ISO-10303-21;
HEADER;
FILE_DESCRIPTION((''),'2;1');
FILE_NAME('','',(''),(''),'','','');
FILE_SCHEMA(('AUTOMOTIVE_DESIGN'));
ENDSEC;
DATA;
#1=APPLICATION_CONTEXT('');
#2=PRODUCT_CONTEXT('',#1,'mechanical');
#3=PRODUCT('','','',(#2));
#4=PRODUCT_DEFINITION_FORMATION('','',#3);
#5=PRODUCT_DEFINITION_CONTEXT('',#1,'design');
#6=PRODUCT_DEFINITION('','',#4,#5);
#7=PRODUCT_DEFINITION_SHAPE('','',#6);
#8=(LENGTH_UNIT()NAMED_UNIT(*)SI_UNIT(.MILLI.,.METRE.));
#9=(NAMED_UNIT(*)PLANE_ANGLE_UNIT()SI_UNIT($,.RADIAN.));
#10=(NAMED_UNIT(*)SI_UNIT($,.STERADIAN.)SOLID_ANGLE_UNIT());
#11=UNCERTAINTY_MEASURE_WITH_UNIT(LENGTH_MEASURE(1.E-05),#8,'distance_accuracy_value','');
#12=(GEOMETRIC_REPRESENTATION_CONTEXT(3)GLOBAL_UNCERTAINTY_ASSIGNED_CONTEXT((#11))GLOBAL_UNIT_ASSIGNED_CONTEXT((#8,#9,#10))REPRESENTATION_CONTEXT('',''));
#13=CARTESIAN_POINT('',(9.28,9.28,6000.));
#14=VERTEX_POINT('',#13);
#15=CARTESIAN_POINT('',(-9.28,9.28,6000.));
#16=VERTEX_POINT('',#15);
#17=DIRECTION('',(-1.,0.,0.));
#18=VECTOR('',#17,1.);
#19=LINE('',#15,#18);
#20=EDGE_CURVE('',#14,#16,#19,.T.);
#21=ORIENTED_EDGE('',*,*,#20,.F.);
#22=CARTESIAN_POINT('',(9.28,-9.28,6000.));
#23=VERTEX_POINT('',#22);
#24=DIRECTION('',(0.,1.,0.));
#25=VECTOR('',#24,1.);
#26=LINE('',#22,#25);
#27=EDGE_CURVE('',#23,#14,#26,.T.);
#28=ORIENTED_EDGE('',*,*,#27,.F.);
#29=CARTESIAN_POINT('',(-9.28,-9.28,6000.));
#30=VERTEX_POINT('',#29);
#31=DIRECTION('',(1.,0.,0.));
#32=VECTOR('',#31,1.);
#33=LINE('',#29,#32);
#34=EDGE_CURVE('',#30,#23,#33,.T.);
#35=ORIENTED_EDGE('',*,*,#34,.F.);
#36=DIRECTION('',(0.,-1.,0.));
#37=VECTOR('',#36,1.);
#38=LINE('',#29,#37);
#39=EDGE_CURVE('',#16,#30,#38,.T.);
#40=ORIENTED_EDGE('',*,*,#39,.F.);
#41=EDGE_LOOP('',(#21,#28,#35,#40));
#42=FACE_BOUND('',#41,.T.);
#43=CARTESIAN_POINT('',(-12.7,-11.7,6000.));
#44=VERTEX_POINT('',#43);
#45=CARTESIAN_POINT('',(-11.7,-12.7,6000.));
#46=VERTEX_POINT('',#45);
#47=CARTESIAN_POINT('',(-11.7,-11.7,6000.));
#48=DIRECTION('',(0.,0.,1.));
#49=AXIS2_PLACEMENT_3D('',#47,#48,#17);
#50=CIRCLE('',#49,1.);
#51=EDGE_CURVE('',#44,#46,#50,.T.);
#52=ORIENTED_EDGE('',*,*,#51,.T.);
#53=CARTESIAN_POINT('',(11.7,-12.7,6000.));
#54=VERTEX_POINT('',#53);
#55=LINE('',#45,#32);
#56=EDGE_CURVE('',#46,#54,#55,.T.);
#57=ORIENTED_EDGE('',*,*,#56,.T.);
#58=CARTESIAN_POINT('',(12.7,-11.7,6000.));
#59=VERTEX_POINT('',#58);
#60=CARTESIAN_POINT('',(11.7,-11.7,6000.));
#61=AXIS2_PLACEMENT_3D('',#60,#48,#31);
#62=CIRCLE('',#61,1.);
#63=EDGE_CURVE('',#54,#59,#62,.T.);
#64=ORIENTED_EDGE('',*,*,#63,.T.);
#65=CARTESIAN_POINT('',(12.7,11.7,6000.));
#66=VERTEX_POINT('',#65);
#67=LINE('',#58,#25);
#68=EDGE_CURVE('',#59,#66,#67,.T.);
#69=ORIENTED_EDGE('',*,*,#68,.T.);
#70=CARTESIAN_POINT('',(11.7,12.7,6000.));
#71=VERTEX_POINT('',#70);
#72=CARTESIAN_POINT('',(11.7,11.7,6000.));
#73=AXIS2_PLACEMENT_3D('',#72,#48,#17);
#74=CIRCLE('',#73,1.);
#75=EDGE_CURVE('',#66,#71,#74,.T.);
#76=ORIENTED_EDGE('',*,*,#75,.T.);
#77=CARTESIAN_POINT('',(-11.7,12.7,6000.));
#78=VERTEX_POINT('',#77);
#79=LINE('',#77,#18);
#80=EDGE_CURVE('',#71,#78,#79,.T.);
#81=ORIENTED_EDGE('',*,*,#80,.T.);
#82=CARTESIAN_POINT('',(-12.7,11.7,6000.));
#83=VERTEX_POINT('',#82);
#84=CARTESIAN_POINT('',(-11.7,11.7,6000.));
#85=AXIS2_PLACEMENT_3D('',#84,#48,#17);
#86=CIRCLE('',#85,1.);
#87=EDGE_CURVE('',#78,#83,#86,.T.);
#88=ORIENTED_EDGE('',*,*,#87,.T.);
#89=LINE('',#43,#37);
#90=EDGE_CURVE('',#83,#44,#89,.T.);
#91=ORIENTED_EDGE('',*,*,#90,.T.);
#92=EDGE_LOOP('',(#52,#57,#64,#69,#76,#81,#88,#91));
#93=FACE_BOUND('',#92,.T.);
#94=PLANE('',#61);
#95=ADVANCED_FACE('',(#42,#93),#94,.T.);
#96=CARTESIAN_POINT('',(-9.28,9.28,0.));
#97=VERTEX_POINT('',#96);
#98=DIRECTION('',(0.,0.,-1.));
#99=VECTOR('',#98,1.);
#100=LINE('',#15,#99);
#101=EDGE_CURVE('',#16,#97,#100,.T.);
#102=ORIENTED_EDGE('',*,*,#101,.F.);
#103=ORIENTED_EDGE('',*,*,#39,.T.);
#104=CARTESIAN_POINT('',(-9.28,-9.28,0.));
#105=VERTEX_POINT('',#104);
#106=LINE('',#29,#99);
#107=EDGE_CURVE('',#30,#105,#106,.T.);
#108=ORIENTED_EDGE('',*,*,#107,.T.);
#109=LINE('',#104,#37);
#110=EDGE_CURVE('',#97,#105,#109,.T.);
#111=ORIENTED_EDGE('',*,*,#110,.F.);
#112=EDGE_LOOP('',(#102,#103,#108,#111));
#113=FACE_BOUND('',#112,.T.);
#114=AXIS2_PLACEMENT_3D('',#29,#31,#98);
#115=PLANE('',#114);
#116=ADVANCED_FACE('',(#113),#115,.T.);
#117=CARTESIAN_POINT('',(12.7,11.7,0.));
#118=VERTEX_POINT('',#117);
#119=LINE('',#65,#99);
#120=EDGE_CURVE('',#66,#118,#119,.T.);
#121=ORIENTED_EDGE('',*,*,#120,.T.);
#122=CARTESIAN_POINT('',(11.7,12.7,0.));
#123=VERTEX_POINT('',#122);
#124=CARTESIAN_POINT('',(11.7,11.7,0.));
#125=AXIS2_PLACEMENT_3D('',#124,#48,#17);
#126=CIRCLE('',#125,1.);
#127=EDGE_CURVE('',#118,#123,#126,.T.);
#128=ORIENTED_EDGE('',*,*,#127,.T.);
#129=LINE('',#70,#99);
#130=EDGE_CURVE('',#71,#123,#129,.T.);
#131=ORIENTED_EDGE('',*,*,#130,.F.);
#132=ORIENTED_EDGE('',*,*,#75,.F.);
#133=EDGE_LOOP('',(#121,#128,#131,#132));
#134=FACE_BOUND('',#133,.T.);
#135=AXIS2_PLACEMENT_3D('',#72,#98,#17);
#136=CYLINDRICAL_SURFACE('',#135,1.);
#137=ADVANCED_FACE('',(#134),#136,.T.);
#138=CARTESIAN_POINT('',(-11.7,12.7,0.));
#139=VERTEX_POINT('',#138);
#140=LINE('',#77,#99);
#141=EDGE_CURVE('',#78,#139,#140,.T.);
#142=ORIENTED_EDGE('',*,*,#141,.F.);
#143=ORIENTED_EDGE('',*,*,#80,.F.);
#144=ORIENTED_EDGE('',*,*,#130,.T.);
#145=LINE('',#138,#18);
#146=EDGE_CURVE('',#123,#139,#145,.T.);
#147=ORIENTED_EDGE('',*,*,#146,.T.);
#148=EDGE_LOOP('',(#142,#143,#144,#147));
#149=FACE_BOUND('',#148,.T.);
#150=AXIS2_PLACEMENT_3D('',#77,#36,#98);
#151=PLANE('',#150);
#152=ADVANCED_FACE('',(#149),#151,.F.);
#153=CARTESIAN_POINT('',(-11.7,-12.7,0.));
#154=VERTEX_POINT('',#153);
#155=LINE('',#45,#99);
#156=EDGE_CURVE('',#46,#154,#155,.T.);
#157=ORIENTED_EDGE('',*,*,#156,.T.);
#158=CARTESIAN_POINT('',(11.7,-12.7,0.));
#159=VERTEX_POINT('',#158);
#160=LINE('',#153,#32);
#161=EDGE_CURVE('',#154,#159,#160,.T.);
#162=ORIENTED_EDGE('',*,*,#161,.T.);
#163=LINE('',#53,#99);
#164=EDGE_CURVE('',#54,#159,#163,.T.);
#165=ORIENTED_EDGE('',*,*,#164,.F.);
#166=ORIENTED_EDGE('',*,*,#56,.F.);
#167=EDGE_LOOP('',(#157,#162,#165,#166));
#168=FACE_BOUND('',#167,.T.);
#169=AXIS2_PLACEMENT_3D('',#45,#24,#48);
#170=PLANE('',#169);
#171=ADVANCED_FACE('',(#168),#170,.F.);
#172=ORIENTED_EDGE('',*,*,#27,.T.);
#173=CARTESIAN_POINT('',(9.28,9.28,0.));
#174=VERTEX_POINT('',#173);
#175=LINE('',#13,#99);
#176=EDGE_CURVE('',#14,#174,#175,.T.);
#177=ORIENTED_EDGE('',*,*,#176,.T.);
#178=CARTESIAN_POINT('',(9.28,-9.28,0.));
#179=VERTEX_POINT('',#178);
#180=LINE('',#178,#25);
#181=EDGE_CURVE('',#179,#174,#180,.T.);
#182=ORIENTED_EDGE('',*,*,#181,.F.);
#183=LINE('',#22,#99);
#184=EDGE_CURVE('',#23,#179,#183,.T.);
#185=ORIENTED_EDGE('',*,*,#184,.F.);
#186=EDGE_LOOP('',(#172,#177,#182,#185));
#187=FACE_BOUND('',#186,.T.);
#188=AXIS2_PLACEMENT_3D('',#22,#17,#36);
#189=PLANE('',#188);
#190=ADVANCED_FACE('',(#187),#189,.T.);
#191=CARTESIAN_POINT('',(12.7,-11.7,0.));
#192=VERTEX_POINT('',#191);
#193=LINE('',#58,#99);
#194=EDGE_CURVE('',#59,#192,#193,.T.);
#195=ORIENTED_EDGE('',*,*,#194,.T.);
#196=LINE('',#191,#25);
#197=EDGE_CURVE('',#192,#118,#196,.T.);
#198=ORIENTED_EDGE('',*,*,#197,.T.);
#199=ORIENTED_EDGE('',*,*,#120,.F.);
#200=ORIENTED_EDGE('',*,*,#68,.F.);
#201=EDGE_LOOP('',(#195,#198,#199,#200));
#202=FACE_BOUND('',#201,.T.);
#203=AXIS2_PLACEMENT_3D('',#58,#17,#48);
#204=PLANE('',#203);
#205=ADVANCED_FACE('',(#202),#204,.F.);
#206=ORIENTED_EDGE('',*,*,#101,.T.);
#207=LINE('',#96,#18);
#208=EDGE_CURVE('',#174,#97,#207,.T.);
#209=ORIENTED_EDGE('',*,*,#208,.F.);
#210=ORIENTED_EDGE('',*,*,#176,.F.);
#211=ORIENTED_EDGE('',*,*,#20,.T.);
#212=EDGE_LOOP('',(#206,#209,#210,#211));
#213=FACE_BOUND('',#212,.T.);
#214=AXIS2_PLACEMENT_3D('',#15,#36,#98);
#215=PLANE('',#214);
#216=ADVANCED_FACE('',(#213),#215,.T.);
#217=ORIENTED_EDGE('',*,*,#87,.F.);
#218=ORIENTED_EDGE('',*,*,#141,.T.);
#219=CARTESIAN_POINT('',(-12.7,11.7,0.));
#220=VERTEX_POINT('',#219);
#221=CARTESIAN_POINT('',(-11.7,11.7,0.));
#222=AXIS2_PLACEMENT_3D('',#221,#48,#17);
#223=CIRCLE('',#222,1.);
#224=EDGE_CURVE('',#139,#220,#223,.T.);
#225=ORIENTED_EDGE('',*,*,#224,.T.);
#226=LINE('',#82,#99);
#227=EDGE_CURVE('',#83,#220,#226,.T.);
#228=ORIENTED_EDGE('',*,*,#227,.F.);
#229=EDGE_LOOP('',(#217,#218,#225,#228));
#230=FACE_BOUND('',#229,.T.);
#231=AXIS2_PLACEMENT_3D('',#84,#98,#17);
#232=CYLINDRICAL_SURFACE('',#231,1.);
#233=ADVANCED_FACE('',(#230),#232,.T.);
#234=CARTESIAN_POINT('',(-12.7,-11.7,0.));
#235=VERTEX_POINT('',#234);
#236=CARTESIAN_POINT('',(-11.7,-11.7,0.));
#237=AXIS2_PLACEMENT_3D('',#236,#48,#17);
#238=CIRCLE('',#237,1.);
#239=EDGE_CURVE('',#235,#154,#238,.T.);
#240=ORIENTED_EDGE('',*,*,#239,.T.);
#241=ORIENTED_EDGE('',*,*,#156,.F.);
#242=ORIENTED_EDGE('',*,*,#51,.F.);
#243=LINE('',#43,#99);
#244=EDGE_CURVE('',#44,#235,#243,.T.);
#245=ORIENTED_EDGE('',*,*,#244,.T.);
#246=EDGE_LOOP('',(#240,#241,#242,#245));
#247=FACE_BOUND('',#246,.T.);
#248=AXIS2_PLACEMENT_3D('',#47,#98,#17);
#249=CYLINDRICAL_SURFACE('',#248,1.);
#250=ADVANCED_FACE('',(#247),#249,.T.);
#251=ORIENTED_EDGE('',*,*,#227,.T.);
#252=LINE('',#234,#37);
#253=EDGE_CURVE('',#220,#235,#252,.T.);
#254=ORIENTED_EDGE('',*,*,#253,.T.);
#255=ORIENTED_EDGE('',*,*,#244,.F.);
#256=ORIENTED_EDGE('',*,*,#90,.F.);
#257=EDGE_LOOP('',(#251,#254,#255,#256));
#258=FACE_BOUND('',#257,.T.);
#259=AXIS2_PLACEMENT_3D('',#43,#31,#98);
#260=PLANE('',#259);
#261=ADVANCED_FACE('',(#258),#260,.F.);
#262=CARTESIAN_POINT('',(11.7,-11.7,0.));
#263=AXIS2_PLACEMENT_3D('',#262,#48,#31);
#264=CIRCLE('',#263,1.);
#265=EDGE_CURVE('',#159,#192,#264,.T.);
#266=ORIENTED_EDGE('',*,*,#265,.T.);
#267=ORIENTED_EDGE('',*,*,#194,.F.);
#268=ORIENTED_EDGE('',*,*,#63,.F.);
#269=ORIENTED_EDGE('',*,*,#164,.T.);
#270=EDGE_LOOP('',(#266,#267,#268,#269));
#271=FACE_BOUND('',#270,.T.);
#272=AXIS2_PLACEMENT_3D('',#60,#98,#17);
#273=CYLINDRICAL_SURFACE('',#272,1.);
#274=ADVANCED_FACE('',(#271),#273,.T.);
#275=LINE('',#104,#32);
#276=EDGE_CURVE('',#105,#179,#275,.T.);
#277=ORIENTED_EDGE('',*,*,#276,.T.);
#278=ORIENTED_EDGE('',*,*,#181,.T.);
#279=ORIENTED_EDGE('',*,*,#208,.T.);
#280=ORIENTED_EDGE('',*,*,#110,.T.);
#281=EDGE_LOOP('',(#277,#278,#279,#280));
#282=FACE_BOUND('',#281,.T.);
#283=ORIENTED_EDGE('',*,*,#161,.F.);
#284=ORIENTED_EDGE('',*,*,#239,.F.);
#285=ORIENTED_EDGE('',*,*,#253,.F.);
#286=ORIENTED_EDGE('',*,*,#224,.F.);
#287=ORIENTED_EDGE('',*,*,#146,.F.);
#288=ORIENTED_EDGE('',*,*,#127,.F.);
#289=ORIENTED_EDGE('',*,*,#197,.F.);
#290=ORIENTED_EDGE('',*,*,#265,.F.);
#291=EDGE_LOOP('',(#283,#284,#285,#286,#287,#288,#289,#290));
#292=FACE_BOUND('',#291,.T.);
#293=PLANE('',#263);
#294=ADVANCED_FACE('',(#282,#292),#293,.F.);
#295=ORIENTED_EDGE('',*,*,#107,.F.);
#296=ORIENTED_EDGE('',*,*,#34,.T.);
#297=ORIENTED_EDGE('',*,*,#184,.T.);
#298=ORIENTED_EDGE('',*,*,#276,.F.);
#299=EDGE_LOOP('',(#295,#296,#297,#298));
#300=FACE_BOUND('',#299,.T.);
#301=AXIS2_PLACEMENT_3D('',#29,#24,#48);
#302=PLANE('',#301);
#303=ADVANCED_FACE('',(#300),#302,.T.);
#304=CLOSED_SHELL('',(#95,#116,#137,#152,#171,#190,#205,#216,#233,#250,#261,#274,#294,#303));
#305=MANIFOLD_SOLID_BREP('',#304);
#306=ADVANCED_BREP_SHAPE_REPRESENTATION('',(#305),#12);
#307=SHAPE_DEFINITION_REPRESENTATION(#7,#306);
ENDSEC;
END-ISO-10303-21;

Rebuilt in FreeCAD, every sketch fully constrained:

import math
import FreeCAD as App
import Part
import Sketcher

V = App.Vector
Q = App.Units.Quantity


def add_polygon(sketch, points):
    """Adds a closed chain of lines whose ends are joined by coincident constraints."""
    first, n = sketch.GeometryCount, len(points)
    for a, b in zip(points, points[1:] + points[:1]):
        sketch.addGeometry(Part.LineSegment(App.Vector(*a, 0), App.Vector(*b, 0)), False)
    for i in range(n):
        sketch.addConstraint(Sketcher.Constraint("Coincident", first + i, 2, first + (i + 1) % n, 1))

doc = App.newDocument("Part")
params = doc.addObject("Spreadsheet::Sheet", "Params")
for row, (alias, value) in enumerate([
    ("sketch1_radius", "1 mm"),
    ("sketch1_width", "23.4 mm"),
    ("sketch1_width2", "18.56 mm"),
    ("pad1_length", "6000 mm"),
], start=1):
    params.set(f"A{row}", alias)
    params.set(f"B{row}", "=" + value)
    params.setAlias(f"B{row}", alias)

body = doc.addObject("PartDesign::Body", "Body")

# Sketch on XY plane
sketch1 = body.newObject("Sketcher::SketchObject", "Sketch")
sketch1.AttachmentSupport = (doc.getObject("XY_Plane"), [""])
sketch1.MapMode = "FlatFace"
sketch1.addGeometry(Part.LineSegment(V(-11.7, -12.7, 0), V(11.7, -12.7, 0)), False)  # 0
sketch1.addGeometry(Part.ArcOfCircle(Part.Circle(V(11.7, -11.7, 0), V(0, 0, 1), 1), math.radians(-90), math.radians(0)), False)  # 1
sketch1.addGeometry(Part.LineSegment(V(12.7, -11.7, 0), V(12.7, 11.7, 0)), False)  # 2
sketch1.addGeometry(Part.ArcOfCircle(Part.Circle(V(11.7, 11.7, 0), V(0, 0, 1), 1), math.radians(0), math.radians(90)), False)  # 3
sketch1.addGeometry(Part.LineSegment(V(11.7, 12.7, 0), V(-11.7, 12.7, 0)), False)  # 4
sketch1.addGeometry(Part.ArcOfCircle(Part.Circle(V(-11.7, 11.7, 0), V(0, 0, 1), 1), math.radians(90), math.radians(180)), False)  # 5
sketch1.addGeometry(Part.LineSegment(V(-12.7, 11.7, 0), V(-12.7, -11.7, 0)), False)  # 6
sketch1.addGeometry(Part.ArcOfCircle(Part.Circle(V(-11.7, -11.7, 0), V(0, 0, 1), 1), math.radians(-180), math.radians(-90)), False)  # 7
add_polygon(sketch1, [(9.28, -9.28), (-9.28, -9.28), (-9.28, 9.28), (9.28, 9.28)])  # lines 8-11
sketch1.addConstraint(Sketcher.Constraint("Tangent", 0, 2, 1, 1))
sketch1.addConstraint(Sketcher.Constraint("Tangent", 1, 2, 2, 1))
sketch1.addConstraint(Sketcher.Constraint("Tangent", 2, 2, 3, 1))
sketch1.addConstraint(Sketcher.Constraint("Tangent", 3, 2, 4, 1))
sketch1.addConstraint(Sketcher.Constraint("Tangent", 4, 2, 5, 1))
sketch1.addConstraint(Sketcher.Constraint("Tangent", 5, 2, 6, 1))
sketch1.addConstraint(Sketcher.Constraint("Tangent", 6, 2, 7, 1))
sketch1.addConstraint(Sketcher.Constraint("Tangent", 7, 2, 0, 1))
sketch1.addConstraint(Sketcher.Constraint("Horizontal", 0))
sketch1.addConstraint(Sketcher.Constraint("Vertical", 2))
sketch1.addConstraint(Sketcher.Constraint("Horizontal", 4))
sketch1.addConstraint(Sketcher.Constraint("Vertical", 6))
sketch1.addConstraint(Sketcher.Constraint("Horizontal", 8))
sketch1.addConstraint(Sketcher.Constraint("Vertical", 9))
sketch1.addConstraint(Sketcher.Constraint("Horizontal", 10))
sketch1.addConstraint(Sketcher.Constraint("Vertical", 11))
sketch1.addConstraint(Sketcher.Constraint("Equal", 1, 3))
sketch1.addConstraint(Sketcher.Constraint("Equal", 3, 5))
sketch1.addConstraint(Sketcher.Constraint("Equal", 5, 7))
sketch1.addConstraint(Sketcher.Constraint("Symmetric", 1, 3, 5, 3, -1, 1))
sketch1.addConstraint(Sketcher.Constraint("Symmetric", 8, 2, 10, 2, -1, 1))
sketch1.addConstraint(Sketcher.Constraint("Equal", 4, 2))
sketch1.addConstraint(Sketcher.Constraint("Equal", 10, 9))
sketch1.addConstraint(Sketcher.Constraint("Radius", 1, Q("1 mm")))
sketch1.addConstraint(Sketcher.Constraint("DistanceX", 0, 1, 0, 2, Q("23.4 mm")))
sketch1.addConstraint(Sketcher.Constraint("DistanceX", 8, 2, 8, 1, Q("18.56 mm")))
sketch1.setExpression("Constraints[27]", "Params.sketch1_radius")
sketch1.setExpression("Constraints[28]", "Params.sketch1_width")
sketch1.setExpression("Constraints[29]", "Params.sketch1_width2")
pad1 = body.newObject("PartDesign::Pad", "Pad")
pad1.Profile = sketch1
pad1.setExpression("Length", "Params.pad1_length")

doc.recompute()
